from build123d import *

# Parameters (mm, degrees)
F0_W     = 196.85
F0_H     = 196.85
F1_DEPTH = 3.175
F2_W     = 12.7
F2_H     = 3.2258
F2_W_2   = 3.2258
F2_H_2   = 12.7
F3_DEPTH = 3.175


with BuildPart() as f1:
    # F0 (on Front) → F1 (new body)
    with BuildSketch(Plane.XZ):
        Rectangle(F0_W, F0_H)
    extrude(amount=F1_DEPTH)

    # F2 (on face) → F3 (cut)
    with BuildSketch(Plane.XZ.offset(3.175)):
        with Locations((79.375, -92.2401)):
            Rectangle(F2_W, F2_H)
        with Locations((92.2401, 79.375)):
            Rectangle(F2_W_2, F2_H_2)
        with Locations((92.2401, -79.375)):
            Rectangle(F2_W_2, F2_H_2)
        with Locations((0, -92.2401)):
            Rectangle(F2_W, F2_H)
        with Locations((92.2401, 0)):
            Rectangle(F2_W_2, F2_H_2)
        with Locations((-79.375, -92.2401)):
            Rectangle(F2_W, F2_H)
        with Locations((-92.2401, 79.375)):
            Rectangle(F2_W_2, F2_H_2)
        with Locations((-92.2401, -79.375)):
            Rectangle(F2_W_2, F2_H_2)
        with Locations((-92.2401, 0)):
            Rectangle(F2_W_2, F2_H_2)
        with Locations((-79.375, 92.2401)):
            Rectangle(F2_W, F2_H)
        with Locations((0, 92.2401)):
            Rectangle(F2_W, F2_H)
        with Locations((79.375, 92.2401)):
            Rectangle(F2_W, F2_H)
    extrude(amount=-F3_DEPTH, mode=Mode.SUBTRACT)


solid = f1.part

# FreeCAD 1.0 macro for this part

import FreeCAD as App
import Part
import Sketcher
Q = App.Units.Quantity


def add_polygon(sketch, points):
    """Adds a closed chain of lines whose ends are joined by coincident constraints."""
    first, n = sketch.GeometryCount, len(points)
    for a, b in zip(points, points[1:] + points[:1]):
        sketch.addGeometry(Part.LineSegment(App.Vector(*a, 0), App.Vector(*b, 0)), False)
    for i in range(n):
        sketch.addConstraint(Sketcher.Constraint("Coincident", first + i, 2, first + (i + 1) % n, 1))

doc = App.newDocument("Part")
body = doc.addObject("PartDesign::Body", "Body")

# Sketch on XZ plane
sketch1 = body.newObject("Sketcher::SketchObject", "Sketch")
sketch1.AttachmentSupport = (doc.getObject("XZ_Plane"), [""])
sketch1.MapMode = "FlatFace"
add_polygon(sketch1, [(-98, 98), (-98, -98), (98, -98), (98, 98)])  # lines 0-3
sketch1.addConstraint(Sketcher.Constraint("Vertical", 0))
sketch1.addConstraint(Sketcher.Constraint("Horizontal", 1))
sketch1.addConstraint(Sketcher.Constraint("Vertical", 2))
sketch1.addConstraint(Sketcher.Constraint("Horizontal", 3))
sketch1.addConstraint(Sketcher.Constraint("Symmetric", 0, 2, 2, 2, -1, 1))
sketch1.addConstraint(Sketcher.Constraint("Equal", 3, 0))
sketch1.addConstraint(Sketcher.Constraint("DistanceX", 1, 1, 1, 2, Q("7.75 in")))
pad1 = body.newObject("PartDesign::Pad", "Pad")
pad1.Profile = sketch1
pad1.Length = Q("0.125 in")

# Sketch on XZ plane
sketch2 = body.newObject("Sketcher::SketchObject", "Sketch001")
sketch2.AttachmentSupport = (doc.getObject("XZ_Plane"), [""])
sketch2.MapMode = "FlatFace"
sketch2.AttachmentOffset = App.Placement(App.Vector(0, 0, 0.125 * 25.4), App.Rotation())
add_polygon(sketch2, [(73, -90.6), (73, -93.9), (85.7, -93.9), (85.7, -90.6)])  # lines 0-3
add_polygon(sketch2, [(90.6, 85.7), (90.6, 73), (93.9, 73), (93.9, 85.7)])  # lines 4-7
add_polygon(sketch2, [(90.6, -73), (90.6, -85.7), (93.9, -85.7), (93.9, -73)])  # lines 8-11
add_polygon(sketch2, [(-6.3, -90.6), (-6.3, -93.9), (6.3, -93.9), (6.3, -90.6)])  # lines 12-15
add_polygon(sketch2, [(90.6, 6.3), (90.6, -6.3), (93.9, -6.3), (93.9, 6.3)])  # lines 16-19
add_polygon(sketch2, [(-85.7, -90.6), (-85.7, -93.9), (-73, -93.9), (-73, -90.6)])  # lines 20-23
add_polygon(sketch2, [(-93.9, 85.7), (-93.9, 73), (-90.6, 73), (-90.6, 85.7)])  # lines 24-27
add_polygon(sketch2, [(-93.9, -73), (-93.9, -85.7), (-90.6, -85.7), (-90.6, -73)])  # lines 28-31
add_polygon(sketch2, [(-93.9, 6.3), (-93.9, -6.3), (-90.6, -6.3), (-90.6, 6.3)])  # lines 32-35
add_polygon(sketch2, [(-85.7, 93.9), (-85.7, 90.6), (-73, 90.6), (-73, 93.9)])  # lines 36-39
add_polygon(sketch2, [(-6.3, 93.9), (-6.3, 90.6), (6.3, 90.6), (6.3, 93.9)])  # lines 40-43
add_polygon(sketch2, [(73, 93.9), (73, 90.6), (85.7, 90.6), (85.7, 93.9)])  # lines 44-47
sketch2.addConstraint(Sketcher.Constraint("Vertical", 0))
sketch2.addConstraint(Sketcher.Constraint("Horizontal", 1))
sketch2.addConstraint(Sketcher.Constraint("Vertical", 2))
sketch2.addConstraint(Sketcher.Constraint("Horizontal", 3))
sketch2.addConstraint(Sketcher.Constraint("Vertical", 4))
sketch2.addConstraint(Sketcher.Constraint("Horizontal", 5))
sketch2.addConstraint(Sketcher.Constraint("Vertical", 6))
sketch2.addConstraint(Sketcher.Constraint("Horizontal", 7))
sketch2.addConstraint(Sketcher.Constraint("Vertical", 8))
sketch2.addConstraint(Sketcher.Constraint("Horizontal", 9))
sketch2.addConstraint(Sketcher.Constraint("Vertical", 10))
sketch2.addConstraint(Sketcher.Constraint("Horizontal", 11))
sketch2.addConstraint(Sketcher.Constraint("Vertical", 12))
sketch2.addConstraint(Sketcher.Constraint("Horizontal", 13))
sketch2.addConstraint(Sketcher.Constraint("Vertical", 14))
sketch2.addConstraint(Sketcher.Constraint("Horizontal", 15))
sketch2.addConstraint(Sketcher.Constraint("Vertical", 16))
sketch2.addConstraint(Sketcher.Constraint("Horizontal", 17))
sketch2.addConstraint(Sketcher.Constraint("Vertical", 18))
sketch2.addConstraint(Sketcher.Constraint("Horizontal", 19))
sketch2.addConstraint(Sketcher.Constraint("Vertical", 20))
sketch2.addConstraint(Sketcher.Constraint("Horizontal", 21))
sketch2.addConstraint(Sketcher.Constraint("Vertical", 22))
sketch2.addConstraint(Sketcher.Constraint("Horizontal", 23))
sketch2.addConstraint(Sketcher.Constraint("Vertical", 24))
sketch2.addConstraint(Sketcher.Constraint("Horizontal", 25))
sketch2.addConstraint(Sketcher.Constraint("Vertical", 26))
sketch2.addConstraint(Sketcher.Constraint("Horizontal", 27))
sketch2.addConstraint(Sketcher.Constraint("Vertical", 28))
sketch2.addConstraint(Sketcher.Constraint("Horizontal", 29))
sketch2.addConstraint(Sketcher.Constraint("Vertical", 30))
sketch2.addConstraint(Sketcher.Constraint("Horizontal", 31))
sketch2.addConstraint(Sketcher.Constraint("Vertical", 32))
sketch2.addConstraint(Sketcher.Constraint("Horizontal", 33))
sketch2.addConstraint(Sketcher.Constraint("Vertical", 34))
sketch2.addConstraint(Sketcher.Constraint("Horizontal", 35))
sketch2.addConstraint(Sketcher.Constraint("Vertical", 36))
sketch2.addConstraint(Sketcher.Constraint("Horizontal", 37))
sketch2.addConstraint(Sketcher.Constraint("Vertical", 38))
sketch2.addConstraint(Sketcher.Constraint("Horizontal", 39))
sketch2.addConstraint(Sketcher.Constraint("Vertical", 40))
sketch2.addConstraint(Sketcher.Constraint("Horizontal", 41))
sketch2.addConstraint(Sketcher.Constraint("Vertical", 42))
sketch2.addConstraint(Sketcher.Constraint("Horizontal", 43))
sketch2.addConstraint(Sketcher.Constraint("Vertical", 44))
sketch2.addConstraint(Sketcher.Constraint("Horizontal", 45))
sketch2.addConstraint(Sketcher.Constraint("Vertical", 46))
sketch2.addConstraint(Sketcher.Constraint("Horizontal", 47))
sketch2.addConstraint(Sketcher.Constraint("Symmetric", 10, 2, 24, 2, -1, 1))
sketch2.addConstraint(Sketcher.Constraint("Symmetric", 8, 2, 26, 2, -1, 1))
sketch2.addConstraint(Sketcher.Constraint("Symmetric", 6, 2, 28, 2, -1, 1))
sketch2.addConstraint(Sketcher.Constraint("Symmetric", 4, 2, 30, 2, -1, 1))
sketch2.addConstraint(Sketcher.Constraint("Symmetric", 18, 2, 32, 2, -1, 1))
sketch2.addConstraint(Sketcher.Constraint("Symmetric", 16, 2, 34, 2, -1, 1))
sketch2.addConstraint(Sketcher.Constraint("Symmetric", 2, 2, 36, 2, -1, 1))
sketch2.addConstraint(Sketcher.Constraint("Symmetric", 0, 2, 38, 2, -1, 1))
sketch2.addConstraint(Sketcher.Constraint("Symmetric", 14, 2, 40, 2, -1, 1))
sketch2.addConstraint(Sketcher.Constraint("Symmetric", 12, 2, 42, 2, -1, 1))
sketch2.addConstraint(Sketcher.Constraint("Symmetric", 22, 2, 44, 2, -1, 1))
sketch2.addConstraint(Sketcher.Constraint("Symmetric", 20, 2, 46, 2, -1, 1))
sketch2.addConstraint(Sketcher.Constraint("Symmetric", 1, 2, 20, 2, -2))
sketch2.addConstraint(Sketcher.Constraint("Symmetric", 3, 2, 22, 2, -2))
sketch2.addConstraint(Sketcher.Constraint("Symmetric", 5, 2, 24, 2, -2))
sketch2.addConstraint(Sketcher.Constraint("Symmetric", 7, 2, 26, 2, -2))
sketch2.addConstraint(Sketcher.Constraint("Horizontal", 1, 2, 12, 2))
sketch2.addConstraint(Sketcher.Constraint("Horizontal", 3, 2, 14, 2))
sketch2.addConstraint(Sketcher.Constraint("Horizontal", 17, 2, 32, 2))
sketch2.addConstraint(Sketcher.Constraint("Vertical", 11, 2, 16, 2))
sketch2.addConstraint(Sketcher.Constraint("Vertical", 10, 2, 17, 2))
sketch2.addConstraint(Sketcher.Constraint("Vertical", 15, 2, 40, 2))
sketch2.addConstraint(Sketcher.Constraint("Equal", 3, 13))
sketch2.addConstraint(Sketcher.Constraint("Equal", 35, 0))
sketch2.addConstraint(Sketcher.Constraint("Equal", 47, 4))
sketch2.addConstraint(Sketcher.Constraint("Equal", 10, 16))
sketch2.addConstraint(Sketcher.Constraint("DistanceX", 1, 1, 1, 2, Q("0.5 in")))
sketch2.addConstraint(Sketcher.Constraint("DistanceX", 5, 1, 5, 2, Q("0.127 in")))
sketch2.addConstraint(Sketcher.Constraint("DistanceY", 1, 2, 4, 2, Q("6.57 in")))
sketch2.addConstraint(Sketcher.Constraint("DistanceX", 2, 2, 5, 2, Q("0.32 in")))
sketch2.addConstraint(Sketcher.Constraint("DistanceY", 1, 2, 8, 2, Q("0.32 in")))
sketch2.addConstraint(Sketcher.Constraint("DistanceX", 20, 2, 0, 2, Q("6.25 in")))
pocket1 = body.newObject("PartDesign::Pocket", "Pocket")
pocket1.Profile = sketch2
pocket1.Length = Q("0.125 in")

doc.recompute()
